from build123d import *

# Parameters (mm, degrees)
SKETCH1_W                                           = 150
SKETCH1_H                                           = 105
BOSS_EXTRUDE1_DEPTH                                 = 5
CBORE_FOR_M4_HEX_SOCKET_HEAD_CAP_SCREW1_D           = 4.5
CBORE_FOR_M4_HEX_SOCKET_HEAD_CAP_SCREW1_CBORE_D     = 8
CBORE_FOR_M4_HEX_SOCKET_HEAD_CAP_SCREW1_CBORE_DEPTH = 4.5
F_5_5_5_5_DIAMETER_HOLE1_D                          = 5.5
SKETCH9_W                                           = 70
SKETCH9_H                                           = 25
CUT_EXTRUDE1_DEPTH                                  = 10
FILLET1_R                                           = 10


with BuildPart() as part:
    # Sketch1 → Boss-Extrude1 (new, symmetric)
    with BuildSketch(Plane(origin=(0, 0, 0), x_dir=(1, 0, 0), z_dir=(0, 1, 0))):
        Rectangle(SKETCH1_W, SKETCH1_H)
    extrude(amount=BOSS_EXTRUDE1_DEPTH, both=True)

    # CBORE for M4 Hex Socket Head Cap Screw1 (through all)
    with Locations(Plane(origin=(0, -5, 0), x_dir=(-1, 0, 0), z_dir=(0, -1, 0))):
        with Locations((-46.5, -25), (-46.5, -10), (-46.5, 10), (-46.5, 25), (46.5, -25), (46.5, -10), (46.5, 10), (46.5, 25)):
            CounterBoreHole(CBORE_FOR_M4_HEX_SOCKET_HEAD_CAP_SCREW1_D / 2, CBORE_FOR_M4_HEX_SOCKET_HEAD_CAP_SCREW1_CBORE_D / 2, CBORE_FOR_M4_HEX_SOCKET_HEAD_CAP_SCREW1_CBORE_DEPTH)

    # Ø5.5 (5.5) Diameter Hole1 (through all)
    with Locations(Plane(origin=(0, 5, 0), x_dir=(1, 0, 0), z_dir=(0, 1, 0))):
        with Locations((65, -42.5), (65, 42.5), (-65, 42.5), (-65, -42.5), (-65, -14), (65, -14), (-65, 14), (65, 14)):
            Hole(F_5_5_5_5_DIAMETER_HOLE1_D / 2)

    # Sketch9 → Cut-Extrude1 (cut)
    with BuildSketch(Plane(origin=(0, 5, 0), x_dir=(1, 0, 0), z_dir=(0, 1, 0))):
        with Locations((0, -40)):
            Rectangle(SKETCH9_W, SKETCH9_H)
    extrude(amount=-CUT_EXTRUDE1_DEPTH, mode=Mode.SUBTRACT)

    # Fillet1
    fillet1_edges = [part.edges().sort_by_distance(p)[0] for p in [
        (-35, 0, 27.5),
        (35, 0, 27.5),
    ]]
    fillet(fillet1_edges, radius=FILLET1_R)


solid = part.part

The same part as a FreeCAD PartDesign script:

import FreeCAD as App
import Part
import Sketcher

V = App.Vector


def edges_at(feature, points):
    """Names of the edges that pass closest to the given points."""
    edges = feature.Shape.Edges
    near = lambda p: min(range(len(edges)), key=lambda i: edges[i].distToShape(Part.Vertex(*p))[0])
    return sorted({f"Edge{near(p) + 1}" for p in points})

doc = App.newDocument("Part")
body = doc.addObject("PartDesign::Body", "Body")

# Sketch on XZ plane
sketch1 = doc.addObject("Sketcher::SketchObject", "Sketch")
body.addObject(sketch1)
sketch1.AttachmentSupport = (doc.XZ_Plane, [""])
sketch1.MapMode = "FlatFace"
sketch1.addGeometry([
    Part.LineSegment(V(-75, -52, 0), V(-75, 52, 0)),
    Part.LineSegment(V(-75, 52, 0), V(75, 52, 0)),
    Part.LineSegment(V(75, 52, 0), V(75, -52, 0)),
    Part.LineSegment(V(75, -52, 0), V(-75, -52, 0)),
], False)
sketch1.addConstraint([
    Sketcher.Constraint("Coincident", 0, 2, 1, 1),
    Sketcher.Constraint("Coincident", 1, 2, 2, 1),
    Sketcher.Constraint("Coincident", 2, 2, 3, 1),
    Sketcher.Constraint("Coincident", 3, 2, 0, 1),
    Sketcher.Constraint("Vertical", 0),
    Sketcher.Constraint("Horizontal", 1),
    Sketcher.Constraint("Vertical", 2),
    Sketcher.Constraint("Horizontal", 3),
    Sketcher.Constraint("Symmetric", 0, 2, 2, 2, -1, 1),
    Sketcher.Constraint("DistanceX", 1, 1, 1, 2, 150.0),
    Sketcher.Constraint("DistanceY", 0, 1, 0, 2, 105.0),
])
pad1 = doc.addObject("PartDesign::Pad", "Pad")
body.addObject(pad1)
pad1.Profile = sketch1
pad1.Length = 10
pad1.Midplane = True

# Sketch on XZ plane
sketch2 = doc.addObject("Sketcher::SketchObject", "Sketch001")
body.addObject(sketch2)
sketch2.AttachmentSupport = (doc.XZ_Plane, [""])
sketch2.MapMode = "FlatFace"
sketch2.AttachmentOffset = App.Placement(V(0, 0, 5), App.Rotation())
sketch2.addGeometry([
    Part.Circle(V(46.5, 25, 0), V(0, 0, 1), 2.2),  # 0
    Part.Circle(V(46.5, 10, 0), V(0, 0, 1), 2.2),  # 1
    Part.Circle(V(46.5, -10, 0), V(0, 0, 1), 2.2),  # 2
    Part.Circle(V(46.5, -25, 0), V(0, 0, 1), 2.2),  # 3
    Part.Circle(V(-46.5, 25, 0), V(0, 0, 1), 2.2),  # 4
    Part.Circle(V(-46.5, 10, 0), V(0, 0, 1), 2.2),  # 5
    Part.Circle(V(-46.5, -10, 0), V(0, 0, 1), 2.2),  # 6
    Part.Circle(V(-46.5, -25, 0), V(0, 0, 1), 2.2),  # 7
], False)
sketch2.addConstraint([
    Sketcher.Constraint("Equal", 0, 1),
    Sketcher.Constraint("Equal", 1, 2),
    Sketcher.Constraint("Equal", 2, 3),
    Sketcher.Constraint("Equal", 3, 4),
    Sketcher.Constraint("Equal", 4, 5),
    Sketcher.Constraint("Equal", 5, 6),
    Sketcher.Constraint("Equal", 6, 7),
    Sketcher.Constraint("Symmetric", 3, 3, 4, 3, -1, 1),
    Sketcher.Constraint("Symmetric", 2, 3, 5, 3, -1, 1),
    Sketcher.Constraint("Symmetric", 1, 3, 6, 3, -1, 1),
    Sketcher.Constraint("Symmetric", 0, 3, 7, 3, -1, 1),
    Sketcher.Constraint("Symmetric", 0, 3, 4, 3, -2),
    Sketcher.Constraint("Symmetric", 1, 3, 5, 3, -2),
    Sketcher.Constraint("Vertical", 0, 3, 1, 3),
    Sketcher.Constraint("Diameter", 0, 4.5),
    Sketcher.Constraint("DistanceY", -1, 1, 0, 3, 25.0),
    Sketcher.Constraint("DistanceY", -1, 1, 1, 3, 10.0),
    Sketcher.Constraint("DistanceX", 4, 3, 0, 3, 93.0),
])
doc.recompute()
hole = doc.addObject("PartDesign::Hole", "Hole")
body.addObject(hole)
hole.Profile = sketch2
hole.ThreadType = "None"
hole.Diameter = 4.5
hole.DepthType = "ThroughAll"
hole.HoleCutType = "Counterbore"
hole.HoleCutDiameter = 8
hole.HoleCutDepth = 4.5

# Sketch on XZ plane
sketch3 = doc.addObject("Sketcher::SketchObject", "Sketch002")
body.addObject(sketch3)
sketch3.AttachmentSupport = (doc.XZ_Plane, [""])
sketch3.MapMode = "FlatFace"
sketch3.AttachmentOffset = App.Placement(V(0, 0, -5), App.Rotation())
sketch3.addGeometry([
    Part.Circle(V(65, 42.5, 0), V(0, 0, 1), 2.8),  # 0
    Part.Circle(V(65, -42.5, 0), V(0, 0, 1), 2.8),  # 1
    Part.Circle(V(-65, -42.5, 0), V(0, 0, 1), 2.8),  # 2
    Part.Circle(V(-65, 42.5, 0), V(0, 0, 1), 2.8),  # 3
    Part.Circle(V(-65, 14, 0), V(0, 0, 1), 2.8),  # 4
    Part.Circle(V(65, 14, 0), V(0, 0, 1), 2.8),  # 5
    Part.Circle(V(-65, -14, 0), V(0, 0, 1), 2.8),  # 6
    Part.Circle(V(65, -14, 0), V(0, 0, 1), 2.8),  # 7
], False)
sketch3.addConstraint([
    Sketcher.Constraint("Equal", 0, 1),
    Sketcher.Constraint("Equal", 1, 2),
    Sketcher.Constraint("Equal", 2, 3),
    Sketcher.Constraint("Equal", 3, 4),
    Sketcher.Constraint("Equal", 4, 5),
    Sketcher.Constraint("Equal", 5, 6),
    Sketcher.Constraint("Equal", 6, 7),
    Sketcher.Constraint("Symmetric", 0, 3, 2, 3, -1, 1),
    Sketcher.Constraint("Symmetric", 1, 3, 3, 3, -1, 1),
    Sketcher.Constraint("Symmetric", 5, 3, 6, 3, -1, 1),
    Sketcher.Constraint("Symmetric", 4, 3, 7, 3, -1, 1),
    Sketcher.Constraint("Symmetric", 1, 3, 2, 3, -2),
    Sketcher.Constraint("Symmetric", 4, 3, 5, 3, -2),
    Sketcher.Constraint("Vertical", 3, 3, 4, 3),
    Sketcher.Constraint("Diameter", 0, 5.5),
    Sketcher.Constraint("DistanceX", -1, 1, 0, 3, 65.0),
    Sketcher.Constraint("DistanceY", -1, 1, 4, 3, 14.0),
    Sketcher.Constraint("DistanceY", 1, 3, 0, 3, 85.0),
])
doc.recompute()
hole2 = doc.addObject("PartDesign::Hole", "Hole001")
body.addObject(hole2)
hole2.Profile = sketch3
hole2.ThreadType = "None"
hole2.Diameter = 5.5
hole2.DepthType = "ThroughAll"
hole2.Reversed = True

# Sketch on XZ plane
sketch4 = doc.addObject("Sketcher::SketchObject", "Sketch003")
body.addObject(sketch4)
sketch4.AttachmentSupport = (doc.XZ_Plane, [""])
sketch4.MapMode = "FlatFace"
sketch4.AttachmentOffset = App.Placement(V(0, 0, -5), App.Rotation())
sketch4.addGeometry([
    Part.LineSegment(V(-35, 28, 0), V(-35, 52, 0)),
    Part.LineSegment(V(-35, 52, 0), V(35, 52, 0)),
    Part.LineSegment(V(35, 52, 0), V(35, 28, 0)),
    Part.LineSegment(V(35, 28, 0), V(-35, 28, 0)),
], False)
sketch4.addConstraint([
    Sketcher.Constraint("Coincident", 0, 2, 1, 1),
    Sketcher.Constraint("Coincident", 1, 2, 2, 1),
    Sketcher.Constraint("Coincident", 2, 2, 3, 1),
    Sketcher.Constraint("Coincident", 3, 2, 0, 1),
    Sketcher.Constraint("Vertical", 0),
    Sketcher.Constraint("Horizontal", 1),
    Sketcher.Constraint("Vertical", 2),
    Sketcher.Constraint("Horizontal", 3),
    Sketcher.Constraint("DistanceX", 1, 1, 1, 2, 70.0),
    Sketcher.Constraint("DistanceY", 0, 1, 0, 2, 25.0),
    Sketcher.Constraint("DistanceX", 0, 2, -1, 1, 35.0),
    Sketcher.Constraint("DistanceY", -1, 1, 0, 2, 52.5),
])
pocket1 = doc.addObject("PartDesign::Pocket", "Pocket")
body.addObject(pocket1)
pocket1.Profile = sketch4
pocket1.Length = 10
pocket1.Reversed = True
doc.recompute()

fillet = doc.addObject("PartDesign::Fillet", "Fillet")
body.addObject(fillet)
fillet.Base = (pocket1, edges_at(pocket1, [(-35, 0, 27.5), (35, 0, 27.5)]))
fillet.Radius = 10

doc.recompute()
